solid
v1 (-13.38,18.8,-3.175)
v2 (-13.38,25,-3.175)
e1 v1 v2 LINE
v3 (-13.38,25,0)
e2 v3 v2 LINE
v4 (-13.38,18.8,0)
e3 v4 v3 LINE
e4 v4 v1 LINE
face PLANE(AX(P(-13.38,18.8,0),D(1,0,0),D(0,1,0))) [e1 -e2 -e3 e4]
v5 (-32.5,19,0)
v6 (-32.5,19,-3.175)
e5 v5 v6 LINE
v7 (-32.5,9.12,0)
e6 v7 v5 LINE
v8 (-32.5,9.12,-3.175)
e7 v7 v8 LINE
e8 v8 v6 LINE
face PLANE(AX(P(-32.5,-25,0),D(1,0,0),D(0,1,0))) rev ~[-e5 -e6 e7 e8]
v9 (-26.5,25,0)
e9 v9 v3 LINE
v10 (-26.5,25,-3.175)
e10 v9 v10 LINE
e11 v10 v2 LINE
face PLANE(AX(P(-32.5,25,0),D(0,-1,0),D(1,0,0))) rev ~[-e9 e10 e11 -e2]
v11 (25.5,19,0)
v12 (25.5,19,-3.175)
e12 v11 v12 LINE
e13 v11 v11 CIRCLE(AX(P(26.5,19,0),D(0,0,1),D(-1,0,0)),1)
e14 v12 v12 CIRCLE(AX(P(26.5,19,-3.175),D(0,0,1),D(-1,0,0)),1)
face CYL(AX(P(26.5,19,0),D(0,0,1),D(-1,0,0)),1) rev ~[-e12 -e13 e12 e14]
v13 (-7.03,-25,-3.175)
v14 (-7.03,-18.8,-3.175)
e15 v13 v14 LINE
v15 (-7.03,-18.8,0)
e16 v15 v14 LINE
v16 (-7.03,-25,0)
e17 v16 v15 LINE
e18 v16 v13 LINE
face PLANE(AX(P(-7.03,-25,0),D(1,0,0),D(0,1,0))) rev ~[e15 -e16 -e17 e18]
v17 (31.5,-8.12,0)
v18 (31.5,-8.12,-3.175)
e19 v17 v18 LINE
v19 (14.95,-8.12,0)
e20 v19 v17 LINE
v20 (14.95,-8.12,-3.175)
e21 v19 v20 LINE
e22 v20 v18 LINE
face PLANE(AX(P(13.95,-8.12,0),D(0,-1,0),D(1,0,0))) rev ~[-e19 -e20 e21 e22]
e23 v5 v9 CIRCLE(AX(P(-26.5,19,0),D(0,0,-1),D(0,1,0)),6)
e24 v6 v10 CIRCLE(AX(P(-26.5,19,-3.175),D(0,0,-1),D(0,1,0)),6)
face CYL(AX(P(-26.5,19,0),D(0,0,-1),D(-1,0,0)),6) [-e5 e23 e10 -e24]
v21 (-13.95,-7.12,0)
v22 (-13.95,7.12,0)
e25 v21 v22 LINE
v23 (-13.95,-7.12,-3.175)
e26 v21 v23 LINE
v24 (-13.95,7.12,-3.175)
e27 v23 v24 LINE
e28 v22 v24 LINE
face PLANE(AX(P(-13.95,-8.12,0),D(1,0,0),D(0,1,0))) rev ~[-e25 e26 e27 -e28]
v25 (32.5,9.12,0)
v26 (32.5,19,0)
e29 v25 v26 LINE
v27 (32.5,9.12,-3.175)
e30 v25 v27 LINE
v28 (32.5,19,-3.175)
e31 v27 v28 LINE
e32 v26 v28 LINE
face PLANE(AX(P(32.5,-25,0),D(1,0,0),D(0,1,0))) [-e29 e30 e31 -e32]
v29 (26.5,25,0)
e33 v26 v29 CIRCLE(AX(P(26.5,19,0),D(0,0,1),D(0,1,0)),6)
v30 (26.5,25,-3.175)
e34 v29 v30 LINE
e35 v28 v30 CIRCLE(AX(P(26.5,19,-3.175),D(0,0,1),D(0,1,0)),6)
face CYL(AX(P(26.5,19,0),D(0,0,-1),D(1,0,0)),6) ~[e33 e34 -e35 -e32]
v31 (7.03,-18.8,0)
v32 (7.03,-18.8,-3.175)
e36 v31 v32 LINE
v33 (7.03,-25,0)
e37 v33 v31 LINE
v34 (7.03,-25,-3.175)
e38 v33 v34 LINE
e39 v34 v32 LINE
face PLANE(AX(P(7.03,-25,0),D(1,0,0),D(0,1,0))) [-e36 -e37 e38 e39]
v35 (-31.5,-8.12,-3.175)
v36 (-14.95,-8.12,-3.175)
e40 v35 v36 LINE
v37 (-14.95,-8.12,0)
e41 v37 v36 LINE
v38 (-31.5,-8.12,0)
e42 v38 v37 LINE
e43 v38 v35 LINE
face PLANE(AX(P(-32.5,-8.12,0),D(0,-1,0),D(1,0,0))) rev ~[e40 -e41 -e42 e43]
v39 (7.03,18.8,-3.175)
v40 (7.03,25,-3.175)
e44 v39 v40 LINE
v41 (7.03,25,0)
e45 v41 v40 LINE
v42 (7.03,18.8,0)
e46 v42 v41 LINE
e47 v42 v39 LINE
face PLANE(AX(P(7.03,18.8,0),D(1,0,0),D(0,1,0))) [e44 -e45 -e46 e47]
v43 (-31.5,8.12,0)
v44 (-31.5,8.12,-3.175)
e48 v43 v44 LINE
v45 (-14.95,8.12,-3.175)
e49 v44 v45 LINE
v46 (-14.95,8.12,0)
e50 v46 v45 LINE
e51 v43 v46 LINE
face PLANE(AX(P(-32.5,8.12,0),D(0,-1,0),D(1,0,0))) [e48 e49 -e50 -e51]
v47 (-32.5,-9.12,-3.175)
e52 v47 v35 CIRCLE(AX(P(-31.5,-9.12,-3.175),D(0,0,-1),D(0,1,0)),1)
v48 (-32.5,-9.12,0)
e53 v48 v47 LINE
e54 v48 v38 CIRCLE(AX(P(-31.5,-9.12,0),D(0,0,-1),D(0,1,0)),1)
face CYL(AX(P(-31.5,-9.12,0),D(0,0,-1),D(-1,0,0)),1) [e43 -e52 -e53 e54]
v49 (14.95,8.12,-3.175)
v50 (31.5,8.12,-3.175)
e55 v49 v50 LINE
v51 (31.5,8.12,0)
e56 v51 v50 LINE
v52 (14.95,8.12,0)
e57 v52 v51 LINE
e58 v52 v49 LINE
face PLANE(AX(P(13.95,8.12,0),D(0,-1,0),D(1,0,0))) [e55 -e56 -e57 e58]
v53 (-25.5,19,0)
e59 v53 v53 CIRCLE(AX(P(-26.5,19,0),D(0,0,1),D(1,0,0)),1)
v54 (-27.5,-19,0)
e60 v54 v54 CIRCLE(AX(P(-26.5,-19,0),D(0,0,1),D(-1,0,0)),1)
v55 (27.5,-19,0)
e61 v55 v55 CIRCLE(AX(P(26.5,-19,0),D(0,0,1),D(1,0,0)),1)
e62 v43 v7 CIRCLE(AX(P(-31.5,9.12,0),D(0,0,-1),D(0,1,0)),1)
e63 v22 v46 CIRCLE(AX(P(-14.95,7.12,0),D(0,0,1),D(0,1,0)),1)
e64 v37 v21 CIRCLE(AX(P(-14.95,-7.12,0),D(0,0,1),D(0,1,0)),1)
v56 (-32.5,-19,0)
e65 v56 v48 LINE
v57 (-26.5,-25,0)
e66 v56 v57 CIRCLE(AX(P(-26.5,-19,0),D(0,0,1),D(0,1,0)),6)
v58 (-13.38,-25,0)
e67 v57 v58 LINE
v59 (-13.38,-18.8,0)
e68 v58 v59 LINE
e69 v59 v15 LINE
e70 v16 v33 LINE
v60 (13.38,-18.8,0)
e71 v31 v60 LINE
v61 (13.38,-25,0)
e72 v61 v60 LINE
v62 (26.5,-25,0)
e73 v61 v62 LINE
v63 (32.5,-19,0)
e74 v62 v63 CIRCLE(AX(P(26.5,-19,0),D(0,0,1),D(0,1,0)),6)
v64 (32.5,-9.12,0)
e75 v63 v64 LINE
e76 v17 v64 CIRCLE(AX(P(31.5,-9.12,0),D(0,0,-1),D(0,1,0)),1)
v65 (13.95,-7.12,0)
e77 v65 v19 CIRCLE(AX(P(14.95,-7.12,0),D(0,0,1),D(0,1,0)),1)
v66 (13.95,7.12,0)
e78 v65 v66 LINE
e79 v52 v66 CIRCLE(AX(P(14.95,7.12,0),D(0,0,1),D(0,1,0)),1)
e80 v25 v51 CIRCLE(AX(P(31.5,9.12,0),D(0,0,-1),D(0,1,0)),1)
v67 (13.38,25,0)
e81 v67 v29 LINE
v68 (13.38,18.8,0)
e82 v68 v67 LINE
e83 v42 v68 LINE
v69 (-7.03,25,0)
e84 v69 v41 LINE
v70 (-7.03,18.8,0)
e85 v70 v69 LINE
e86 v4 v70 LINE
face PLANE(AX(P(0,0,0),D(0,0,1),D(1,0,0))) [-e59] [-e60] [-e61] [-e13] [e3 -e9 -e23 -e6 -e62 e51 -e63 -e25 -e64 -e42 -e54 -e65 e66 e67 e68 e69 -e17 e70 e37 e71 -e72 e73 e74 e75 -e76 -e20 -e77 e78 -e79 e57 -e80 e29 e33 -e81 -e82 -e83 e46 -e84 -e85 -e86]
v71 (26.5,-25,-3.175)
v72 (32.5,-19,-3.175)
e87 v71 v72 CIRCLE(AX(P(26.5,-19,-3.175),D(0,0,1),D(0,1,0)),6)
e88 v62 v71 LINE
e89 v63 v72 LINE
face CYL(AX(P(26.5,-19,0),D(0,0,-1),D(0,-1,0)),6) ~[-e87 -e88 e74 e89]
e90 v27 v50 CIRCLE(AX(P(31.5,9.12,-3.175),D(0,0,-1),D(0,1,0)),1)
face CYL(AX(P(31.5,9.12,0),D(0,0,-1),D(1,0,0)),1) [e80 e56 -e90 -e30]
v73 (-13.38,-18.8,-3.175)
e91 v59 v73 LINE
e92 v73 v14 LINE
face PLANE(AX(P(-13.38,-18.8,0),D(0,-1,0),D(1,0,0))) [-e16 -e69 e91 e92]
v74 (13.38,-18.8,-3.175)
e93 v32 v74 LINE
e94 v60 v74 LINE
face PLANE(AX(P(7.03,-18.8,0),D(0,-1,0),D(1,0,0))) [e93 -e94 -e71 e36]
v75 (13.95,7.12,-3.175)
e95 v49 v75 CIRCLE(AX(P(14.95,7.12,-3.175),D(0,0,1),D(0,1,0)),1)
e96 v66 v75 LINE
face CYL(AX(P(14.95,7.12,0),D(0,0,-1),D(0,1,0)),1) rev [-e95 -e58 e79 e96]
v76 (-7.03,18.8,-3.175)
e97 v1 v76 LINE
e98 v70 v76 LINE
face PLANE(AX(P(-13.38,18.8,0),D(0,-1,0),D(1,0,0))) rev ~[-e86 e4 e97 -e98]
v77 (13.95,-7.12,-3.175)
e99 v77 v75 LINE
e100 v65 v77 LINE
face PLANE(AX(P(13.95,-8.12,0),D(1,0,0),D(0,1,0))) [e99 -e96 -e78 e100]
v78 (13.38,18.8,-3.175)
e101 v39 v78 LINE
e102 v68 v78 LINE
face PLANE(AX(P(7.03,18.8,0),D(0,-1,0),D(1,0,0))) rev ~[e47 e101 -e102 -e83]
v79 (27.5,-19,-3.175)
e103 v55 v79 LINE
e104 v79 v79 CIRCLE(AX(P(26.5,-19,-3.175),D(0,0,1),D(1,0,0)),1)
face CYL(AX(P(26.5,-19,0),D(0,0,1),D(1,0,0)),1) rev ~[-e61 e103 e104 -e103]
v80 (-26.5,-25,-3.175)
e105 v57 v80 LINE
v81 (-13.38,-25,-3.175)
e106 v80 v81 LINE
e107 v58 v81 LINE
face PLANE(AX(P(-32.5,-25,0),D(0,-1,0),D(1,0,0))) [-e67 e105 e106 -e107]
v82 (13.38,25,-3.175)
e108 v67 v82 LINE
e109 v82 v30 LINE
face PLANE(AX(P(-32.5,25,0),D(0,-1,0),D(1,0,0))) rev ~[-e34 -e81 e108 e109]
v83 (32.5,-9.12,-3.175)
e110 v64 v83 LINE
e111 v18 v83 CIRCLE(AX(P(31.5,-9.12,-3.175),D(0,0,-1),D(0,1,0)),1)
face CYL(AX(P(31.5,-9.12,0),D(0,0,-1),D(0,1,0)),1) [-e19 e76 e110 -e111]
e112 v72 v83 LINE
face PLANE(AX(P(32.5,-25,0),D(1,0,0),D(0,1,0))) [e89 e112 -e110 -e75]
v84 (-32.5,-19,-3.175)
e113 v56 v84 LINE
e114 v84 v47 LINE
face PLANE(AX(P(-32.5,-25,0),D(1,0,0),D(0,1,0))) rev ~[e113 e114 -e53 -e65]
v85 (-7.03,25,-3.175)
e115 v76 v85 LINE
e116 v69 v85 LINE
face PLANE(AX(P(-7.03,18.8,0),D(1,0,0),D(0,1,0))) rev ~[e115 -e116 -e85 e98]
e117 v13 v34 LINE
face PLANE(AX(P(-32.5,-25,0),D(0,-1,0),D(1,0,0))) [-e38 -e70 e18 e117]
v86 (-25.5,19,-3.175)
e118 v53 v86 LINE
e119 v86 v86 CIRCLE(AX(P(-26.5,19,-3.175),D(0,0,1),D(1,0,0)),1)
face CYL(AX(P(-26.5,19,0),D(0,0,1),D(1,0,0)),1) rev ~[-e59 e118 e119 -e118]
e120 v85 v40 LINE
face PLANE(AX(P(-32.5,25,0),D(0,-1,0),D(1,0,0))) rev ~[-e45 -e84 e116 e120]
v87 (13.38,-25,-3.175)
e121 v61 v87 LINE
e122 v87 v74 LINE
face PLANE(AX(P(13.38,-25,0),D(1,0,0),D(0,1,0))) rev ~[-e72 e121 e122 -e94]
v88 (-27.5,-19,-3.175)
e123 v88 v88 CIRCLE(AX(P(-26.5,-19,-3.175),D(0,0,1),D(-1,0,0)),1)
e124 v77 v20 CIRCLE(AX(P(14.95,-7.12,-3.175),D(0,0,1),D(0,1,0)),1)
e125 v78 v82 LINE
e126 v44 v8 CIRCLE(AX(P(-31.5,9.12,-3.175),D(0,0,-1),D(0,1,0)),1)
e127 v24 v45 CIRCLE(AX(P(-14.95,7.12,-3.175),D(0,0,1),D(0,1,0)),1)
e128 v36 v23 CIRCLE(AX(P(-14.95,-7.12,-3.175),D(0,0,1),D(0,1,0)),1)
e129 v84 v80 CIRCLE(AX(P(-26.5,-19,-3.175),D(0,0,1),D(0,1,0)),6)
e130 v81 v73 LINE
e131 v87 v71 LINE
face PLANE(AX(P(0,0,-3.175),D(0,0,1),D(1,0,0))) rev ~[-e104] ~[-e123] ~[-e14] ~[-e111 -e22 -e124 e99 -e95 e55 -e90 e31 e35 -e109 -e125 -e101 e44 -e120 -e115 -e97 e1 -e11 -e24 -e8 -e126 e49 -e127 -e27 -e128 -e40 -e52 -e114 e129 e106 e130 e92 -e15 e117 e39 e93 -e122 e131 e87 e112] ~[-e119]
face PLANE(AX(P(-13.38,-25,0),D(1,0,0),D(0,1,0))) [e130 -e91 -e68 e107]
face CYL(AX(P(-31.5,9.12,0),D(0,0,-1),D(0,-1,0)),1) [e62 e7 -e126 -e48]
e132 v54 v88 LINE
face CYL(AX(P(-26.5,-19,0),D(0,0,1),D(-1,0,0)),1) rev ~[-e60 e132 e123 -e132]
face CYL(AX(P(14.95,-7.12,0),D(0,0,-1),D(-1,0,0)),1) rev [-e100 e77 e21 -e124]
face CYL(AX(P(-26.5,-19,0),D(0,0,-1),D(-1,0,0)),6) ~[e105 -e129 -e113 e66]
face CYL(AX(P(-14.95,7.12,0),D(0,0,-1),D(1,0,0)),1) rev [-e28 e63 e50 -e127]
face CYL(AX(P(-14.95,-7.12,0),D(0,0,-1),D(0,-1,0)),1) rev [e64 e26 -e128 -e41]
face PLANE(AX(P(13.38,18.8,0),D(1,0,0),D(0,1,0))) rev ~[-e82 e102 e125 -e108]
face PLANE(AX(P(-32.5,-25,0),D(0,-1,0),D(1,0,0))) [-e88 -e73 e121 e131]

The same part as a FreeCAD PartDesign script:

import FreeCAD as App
import Part
import Sketcher

V = App.Vector


def edges_at(feature, points):
    """Names of the edges that pass closest to the given points."""
    edges = feature.Shape.Edges
    near = lambda p: min(range(len(edges)), key=lambda i: edges[i].distToShape(Part.Vertex(*p))[0])
    return sorted({f"Edge{near(p) + 1}" for p in points})

doc = App.newDocument("Part")
body = doc.addObject("PartDesign::Body", "Body")

sketch1 = body.newObject("Sketcher::SketchObject", "Sketch")
sketch1.AttachmentSupport = (doc.getObject("XY_Plane"), [""])
sketch1.MapMode = "FlatFace"
sketch1.addGeometry(Part.LineSegment(V(-32.5, 25, 0), V(-32.5, -25, 0)), False)
sketch1.addGeometry(Part.LineSegment(V(-32.5, -25, 0), V(32.5, -25, 0)), False)
sketch1.addGeometry(Part.LineSegment(V(32.5, -25, 0), V(32.5, 25, 0)), False)
sketch1.addGeometry(Part.LineSegment(V(32.5, 25, 0), V(-32.5, 25, 0)), False)
sketch1.addConstraint(Sketcher.Constraint("Coincident", 0, 2, 1, 1))
sketch1.addConstraint(Sketcher.Constraint("Coincident", 1, 2, 2, 1))
sketch1.addConstraint(Sketcher.Constraint("Coincident", 2, 2, 3, 1))
sketch1.addConstraint(Sketcher.Constraint("Coincident", 3, 2, 0, 1))
sketch1.addConstraint(Sketcher.Constraint("Vertical", 0))
sketch1.addConstraint(Sketcher.Constraint("Horizontal", 1))
sketch1.addConstraint(Sketcher.Constraint("Vertical", 2))
sketch1.addConstraint(Sketcher.Constraint("Horizontal", 3))
sketch1.addConstraint(Sketcher.Constraint("Symmetric", 0, 2, 2, 2, -1, 1))
sketch1.addConstraint(Sketcher.Constraint("DistanceX", 1, 1, 1, 2, 65.0))
sketch1.addConstraint(Sketcher.Constraint("DistanceY", 0, 2, 0, 1, 50.0))
pad1 = body.newObject("PartDesign::Pad", "Pad")
pad1.Profile = sketch1
pad1.Length = 3.175
pad1.Reversed = True
doc.recompute()

fillet = body.newObject("PartDesign::Fillet", "Fillet")
fillet.Base = (pad1, edges_at(pad1, [
    (32.5, -25, -1.587),
    (-32.5, -25, -1.587),
    (-32.5, 25, -1.587),
    (32.5, 25, -1.587),
]))
fillet.Radius = 6

sketch2 = body.newObject("Sketcher::SketchObject", "Sketch001")
sketch2.AttachmentSupport = (doc.getObject("XY_Plane"), [""])
sketch2.MapMode = "FlatFace"
sketch2.addGeometry(Part.Circle(V(-26.5, 19, 0), V(0, 0, 1), 1), False)
sketch2.addGeometry(Part.Circle(V(26.5, 19, 0), V(0, 0, 1), 1), False)
sketch2.addGeometry(Part.Circle(V(26.5, -19, 0), V(0, 0, 1), 1), False)
sketch2.addGeometry(Part.Circle(V(-26.5, -19, 0), V(0, 0, 1), 1), False)
sketch2.addConstraint(Sketcher.Constraint("Equal", 0, 1))
sketch2.addConstraint(Sketcher.Constraint("Equal", 1, 2))
sketch2.addConstraint(Sketcher.Constraint("Equal", 2, 3))
sketch2.addConstraint(Sketcher.Constraint("Symmetric", 0, 3, 2, 3, -1, 1))
sketch2.addConstraint(Sketcher.Constraint("Symmetric", 1, 3, 3, 3, -1, 1))
sketch2.addConstraint(Sketcher.Constraint("Symmetric", 0, 3, 1, 3, -2))
sketch2.addConstraint(Sketcher.Constraint("Diameter", 0, 2.0))
sketch2.addConstraint(Sketcher.Constraint("DistanceY", -1, 1, 0, 3, 19.0))
sketch2.addConstraint(Sketcher.Constraint("DistanceX", 0, 3, 1, 3, 53.0))
pocket1 = body.newObject("PartDesign::Pocket", "Pocket")
pocket1.Profile = sketch2
pocket1.Type = "ThroughAll"

sketch3 = body.newObject("Sketcher::SketchObject", "Sketch002")
sketch3.AttachmentSupport = (doc.getObject("XY_Plane"), [""])
sketch3.MapMode = "FlatFace"
sketch3.addGeometry(Part.LineSegment(V(-32.5, 8.12, 0), V(-32.5, -8.12, 0)), False)
sketch3.addGeometry(Part.LineSegment(V(-32.5, -8.12, 0), V(-13.95, -8.12, 0)), False)
sketch3.addGeometry(Part.LineSegment(V(-13.95, -8.12, 0), V(-13.95, 8.12, 0)), False)
sketch3.addGeometry(Part.LineSegment(V(-13.95, 8.12, 0), V(-32.5, 8.12, 0)), False)
sketch3.addGeometry(Part.LineSegment(V(13.95, 8.12, 0), V(13.95, -8.12, 0)), False)
sketch3.addGeometry(Part.LineSegment(V(13.95, -8.12, 0), V(32.5, -8.12, 0)), False)
sketch3.addGeometry(Part.LineSegment(V(32.5, -8.12, 0), V(32.5, 8.12, 0)), False)
sketch3.addGeometry(Part.LineSegment(V(32.5, 8.12, 0), V(13.95, 8.12, 0)), False)
sketch3.addConstraint(Sketcher.Constraint("Coincident", 0, 2, 1, 1))
sketch3.addConstraint(Sketcher.Constraint("Coincident", 1, 2, 2, 1))
sketch3.addConstraint(Sketcher.Constraint("Coincident", 2, 2, 3, 1))
sketch3.addConstraint(Sketcher.Constraint("Coincident", 3, 2, 0, 1))
sketch3.addConstraint(Sketcher.Constraint("Coincident", 4, 2, 5, 1))
sketch3.addConstraint(Sketcher.Constraint("Coincident", 5, 2, 6, 1))
sketch3.addConstraint(Sketcher.Constraint("Coincident", 6, 2, 7, 1))
sketch3.addConstraint(Sketcher.Constraint("Coincident", 7, 2, 4, 1))
sketch3.addConstraint(Sketcher.Constraint("Vertical", 0))
sketch3.addConstraint(Sketcher.Constraint("Horizontal", 1))
sketch3.addConstraint(Sketcher.Constraint("Vertical", 2))
sketch3.addConstraint(Sketcher.Constraint("Horizontal", 3))
sketch3.addConstraint(Sketcher.Constraint("Vertical", 4))
sketch3.addConstraint(Sketcher.Constraint("Horizontal", 5))
sketch3.addConstraint(Sketcher.Constraint("Vertical", 6))
sketch3.addConstraint(Sketcher.Constraint("Horizontal", 7))
sketch3.addConstraint(Sketcher.Constraint("Symmetric", 2, 2, 4, 2, -1, 1))
sketch3.addConstraint(Sketcher.Constraint("Symmetric", 0, 2, 6, 2, -1, 1))
sketch3.addConstraint(Sketcher.Constraint("Horizontal", 1, 2, 4, 2))
sketch3.addConstraint(Sketcher.Constraint("DistanceX", 0, 2, 5, 2, 65.0))
sketch3.addConstraint(Sketcher.Constraint("DistanceX", 1, 1, 1, 2, 18.55))
sketch3.addConstraint(Sketcher.Constraint("DistanceY", 0, 2, 0, 1, 16.24))
pocket2 = body.newObject("PartDesign::Pocket", "Pocket001")
pocket2.Profile = sketch3
pocket2.Type = "ThroughAll"

sketch4 = body.newObject("Sketcher::SketchObject", "Sketch003")
sketch4.AttachmentSupport = (doc.getObject("XY_Plane"), [""])
sketch4.MapMode = "FlatFace"
sketch4.addGeometry(Part.LineSegment(V(7.03, 25, 0), V(7.03, 18.8, 0)), False)
sketch4.addGeometry(Part.LineSegment(V(7.03, 18.8, 0), V(13.38, 18.8, 0)), False)
sketch4.addGeometry(Part.LineSegment(V(13.38, 18.8, 0), V(13.38, 25, 0)), False)
sketch4.addGeometry(Part.LineSegment(V(13.38, 25, 0), V(7.03, 25, 0)), False)
sketch4.addGeometry(Part.LineSegment(V(-13.38, 25, 0), V(-13.38, 18.8, 0)), False)
sketch4.addGeometry(Part.LineSegment(V(-13.38, 18.8, 0), V(-7.03, 18.8, 0)), False)
sketch4.addGeometry(Part.LineSegment(V(-7.03, 18.8, 0), V(-7.03, 25, 0)), False)
sketch4.addGeometry(Part.LineSegment(V(-7.03, 25, 0), V(-13.38, 25, 0)), False)
sketch4.addGeometry(Part.LineSegment(V(-13.38, -18.8, 0), V(-13.38, -25, 0)), False)
sketch4.addGeometry(Part.LineSegment(V(-13.38, -25, 0), V(-7.03, -25, 0)), False)
sketch4.addGeometry(Part.LineSegment(V(-7.03, -25, 0), V(-7.03, -18.8, 0)), False)
sketch4.addGeometry(Part.LineSegment(V(-7.03, -18.8, 0), V(-13.38, -18.8, 0)), False)
sketch4.addGeometry(Part.LineSegment(V(7.03, -18.8, 0), V(7.03, -25, 0)), False)
sketch4.addGeometry(Part.LineSegment(V(7.03, -25, 0), V(13.38, -25, 0)), False)
sketch4.addGeometry(Part.LineSegment(V(13.38, -25, 0), V(13.38, -18.8, 0)), False)
sketch4.addGeometry(Part.LineSegment(V(13.38, -18.8, 0), V(7.03, -18.8, 0)), False)
sketch4.addConstraint(Sketcher.Constraint("Coincident", 0, 2, 1, 1))
sketch4.addConstraint(Sketcher.Constraint("Coincident", 1, 2, 2, 1))
sketch4.addConstraint(Sketcher.Constraint("Coincident", 2, 2, 3, 1))
sketch4.addConstraint(Sketcher.Constraint("Coincident", 3, 2, 0, 1))
sketch4.addConstraint(Sketcher.Constraint("Coincident", 4, 2, 5, 1))
sketch4.addConstraint(Sketcher.Constraint("Coincident", 5, 2, 6, 1))
sketch4.addConstraint(Sketcher.Constraint("Coincident", 6, 2, 7, 1))
sketch4.addConstraint(Sketcher.Constraint("Coincident", 7, 2, 4, 1))
sketch4.addConstraint(Sketcher.Constraint("Coincident", 8, 2, 9, 1))
sketch4.addConstraint(Sketcher.Constraint("Coincident", 9, 2, 10, 1))
sketch4.addConstraint(Sketcher.Constraint("Coincident", 10, 2, 11, 1))
sketch4.addConstraint(Sketcher.Constraint("Coincident", 11, 2, 8, 1))
sketch4.addConstraint(Sketcher.Constraint("Coincident", 12, 2, 13, 1))
sketch4.addConstraint(Sketcher.Constraint("Coincident", 13, 2, 14, 1))
sketch4.addConstraint(Sketcher.Constraint("Coincident", 14, 2, 15, 1))
sketch4.addConstraint(Sketcher.Constraint("Coincident", 15, 2, 12, 1))
sketch4.addConstraint(Sketcher.Constraint("Vertical", 0))
sketch4.addConstraint(Sketcher.Constraint("Horizontal", 1))
sketch4.addConstraint(Sketcher.Constraint("Vertical", 2))
sketch4.addConstraint(Sketcher.Constraint("Horizontal", 3))
sketch4.addConstraint(Sketcher.Constraint("Vertical", 4))
sketch4.addConstraint(Sketcher.Constraint("Horizontal", 5))
sketch4.addConstraint(Sketcher.Constraint("Vertical", 6))
sketch4.addConstraint(Sketcher.Constraint("Horizontal", 7))
sketch4.addConstraint(Sketcher.Constraint("Vertical", 8))
sketch4.addConstraint(Sketcher.Constraint("Horizontal", 9))
sketch4.addConstraint(Sketcher.Constraint("Vertical", 10))
sketch4.addConstraint(Sketcher.Constraint("Horizontal", 11))
sketch4.addConstraint(Sketcher.Constraint("Vertical", 12))
sketch4.addConstraint(Sketcher.Constraint("Horizontal", 13))
sketch4.addConstraint(Sketcher.Constraint("Vertical", 14))
sketch4.addConstraint(Sketcher.Constraint("Horizontal", 15))
sketch4.addConstraint(Sketcher.Constraint("Symmetric", 2, 2, 8, 2, -1, 1))
sketch4.addConstraint(Sketcher.Constraint("Symmetric", 0, 2, 10, 2, -1, 1))
sketch4.addConstraint(Sketcher.Constraint("Symmetric", 6, 2, 12, 2, -1, 1))
sketch4.addConstraint(Sketcher.Constraint("Symmetric", 4, 2, 14, 2, -1, 1))
sketch4.addConstraint(Sketcher.Constraint("Symmetric", 1, 2, 4, 2, -2))
sketch4.addConstraint(Sketcher.Constraint("Symmetric", 3, 2, 6, 2, -2))
sketch4.addConstraint(Sketcher.Constraint("DistanceY", 0, 2, 0, 1, 6.2))
sketch4.addConstraint(Sketcher.Constraint("DistanceY", -1, 1, 2, 2, 25.0))
sketch4.addConstraint(Sketcher.Constraint("DistanceX", 1, 1, 1, 2, 6.35))
sketch4.addConstraint(Sketcher.Constraint("DistanceX", -1, 1, 0, 2, 7.03))
pocket3 = body.newObject("PartDesign::Pocket", "Pocket002")
pocket3.Profile = sketch4
pocket3.Type = "ThroughAll"
doc.recompute()

fillet2 = body.newObject("PartDesign::Fillet", "Fillet001")
fillet2.Base = (pocket3, edges_at(pocket3, [
    (32.5, -8.12, -1.587),
    (13.95, -8.12, -1.587),
    (13.95, 8.12, -1.587),
    (32.5, 8.12, -1.587),
    (-13.95, 8.12, -1.587),
    (-13.95, -8.12, -1.587),
    (-32.5, -8.12, -1.587),
    (-32.5, 8.12, -1.587),
]))
fillet2.Radius = 1

doc.recompute()
